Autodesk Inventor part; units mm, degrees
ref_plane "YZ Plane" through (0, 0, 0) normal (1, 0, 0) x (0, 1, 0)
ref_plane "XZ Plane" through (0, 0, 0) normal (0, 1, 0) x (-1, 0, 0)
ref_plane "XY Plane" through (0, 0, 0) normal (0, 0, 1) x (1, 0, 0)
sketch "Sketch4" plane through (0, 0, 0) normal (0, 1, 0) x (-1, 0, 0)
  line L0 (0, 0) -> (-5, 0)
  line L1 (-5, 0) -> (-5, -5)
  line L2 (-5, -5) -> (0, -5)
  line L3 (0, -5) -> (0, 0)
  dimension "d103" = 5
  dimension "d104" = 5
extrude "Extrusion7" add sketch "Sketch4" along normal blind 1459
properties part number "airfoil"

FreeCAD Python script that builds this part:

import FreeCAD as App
import Part
import Sketcher

doc = App.newDocument("Part")
body = doc.addObject("PartDesign::Body", "Body")

sketch1 = body.newObject("Sketcher::SketchObject", "Sketch")
sketch1.AttachmentSupport = (doc.getObject("XZ_Plane"), [""])
sketch1.MapMode = "FlatFace"
sketch1.addGeometry(Part.LineSegment(App.Vector(0, -5, 0), App.Vector(0, 0, 0)), False)
sketch1.addGeometry(Part.LineSegment(App.Vector(0, 0, 0), App.Vector(5, 0, 0)), False)
sketch1.addGeometry(Part.LineSegment(App.Vector(5, 0, 0), App.Vector(5, -5, 0)), False)
sketch1.addGeometry(Part.LineSegment(App.Vector(5, -5, 0), App.Vector(0, -5, 0)), False)
sketch1.addConstraint(Sketcher.Constraint("Coincident", 0, 2, 1, 1))
sketch1.addConstraint(Sketcher.Constraint("Coincident", 1, 2, 2, 1))
sketch1.addConstraint(Sketcher.Constraint("Coincident", 2, 2, 3, 1))
sketch1.addConstraint(Sketcher.Constraint("Coincident", 3, 2, 0, 1))
sketch1.addConstraint(Sketcher.Constraint("Vertical", 0))
sketch1.addConstraint(Sketcher.Constraint("Horizontal", 1))
sketch1.addConstraint(Sketcher.Constraint("Vertical", 2))
sketch1.addConstraint(Sketcher.Constraint("Horizontal", 3))
sketch1.addConstraint(Sketcher.Constraint("Coincident", 0, 2, -1, 1))
sketch1.addConstraint(Sketcher.Constraint("Equal", 3, 0))
sketch1.addConstraint(Sketcher.Constraint("DistanceX", 1, 1, 1, 2, 5.0))
pad1 = body.newObject("PartDesign::Pad", "Pad")
pad1.Profile = sketch1
pad1.Length = 1459
pad1.Reversed = True

doc.recompute()
